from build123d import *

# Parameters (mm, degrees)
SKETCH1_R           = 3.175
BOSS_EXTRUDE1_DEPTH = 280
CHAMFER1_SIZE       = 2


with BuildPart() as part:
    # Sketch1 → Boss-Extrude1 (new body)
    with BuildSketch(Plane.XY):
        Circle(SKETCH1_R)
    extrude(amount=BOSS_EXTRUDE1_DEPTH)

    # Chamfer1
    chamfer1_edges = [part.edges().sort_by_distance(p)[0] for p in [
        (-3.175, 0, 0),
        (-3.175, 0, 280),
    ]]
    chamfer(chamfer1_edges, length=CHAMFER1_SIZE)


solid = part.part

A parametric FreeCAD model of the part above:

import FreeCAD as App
import Part
import Sketcher
from FreeCAD import Vector
Q = App.Units.Quantity


def edges_at(feature, points):
    """Names of the edges that pass closest to the given points."""
    edges = feature.Shape.Edges
    near = lambda p: min(range(len(edges)), key=lambda i: edges[i].distToShape(Part.Vertex(*p))[0])
    return sorted({f"Edge{near(p) + 1}" for p in points})

doc = App.newDocument("Part")
body = doc.addObject("PartDesign::Body", "Body")

sketch1 = body.newObject("Sketcher::SketchObject", "Sketch")
sketch1.AttachmentSupport = (doc.getObject("XY_Plane"), [""])
sketch1.MapMode = "FlatFace"
sketch1.addGeometry(Part.Circle(Vector(0, 0, 0), Vector(0, 0, 1), 3.175), False)
sketch1.addConstraint(Sketcher.Constraint("Coincident", 0, 3, -1, 1))
sketch1.addConstraint(Sketcher.Constraint("Diameter", 0, Q("6.35 mm")))
pad1 = body.newObject("PartDesign::Pad", "Pad")
pad1.Profile = sketch1
pad1.Length = 280
doc.recompute()

chamfer = body.newObject("PartDesign::Chamfer", "Chamfer")
chamfer.Base = (pad1, edges_at(pad1, [(-3.175, 0, 0), (-3.175, 0, 280)]))
chamfer.Size = 2

doc.recompute()
